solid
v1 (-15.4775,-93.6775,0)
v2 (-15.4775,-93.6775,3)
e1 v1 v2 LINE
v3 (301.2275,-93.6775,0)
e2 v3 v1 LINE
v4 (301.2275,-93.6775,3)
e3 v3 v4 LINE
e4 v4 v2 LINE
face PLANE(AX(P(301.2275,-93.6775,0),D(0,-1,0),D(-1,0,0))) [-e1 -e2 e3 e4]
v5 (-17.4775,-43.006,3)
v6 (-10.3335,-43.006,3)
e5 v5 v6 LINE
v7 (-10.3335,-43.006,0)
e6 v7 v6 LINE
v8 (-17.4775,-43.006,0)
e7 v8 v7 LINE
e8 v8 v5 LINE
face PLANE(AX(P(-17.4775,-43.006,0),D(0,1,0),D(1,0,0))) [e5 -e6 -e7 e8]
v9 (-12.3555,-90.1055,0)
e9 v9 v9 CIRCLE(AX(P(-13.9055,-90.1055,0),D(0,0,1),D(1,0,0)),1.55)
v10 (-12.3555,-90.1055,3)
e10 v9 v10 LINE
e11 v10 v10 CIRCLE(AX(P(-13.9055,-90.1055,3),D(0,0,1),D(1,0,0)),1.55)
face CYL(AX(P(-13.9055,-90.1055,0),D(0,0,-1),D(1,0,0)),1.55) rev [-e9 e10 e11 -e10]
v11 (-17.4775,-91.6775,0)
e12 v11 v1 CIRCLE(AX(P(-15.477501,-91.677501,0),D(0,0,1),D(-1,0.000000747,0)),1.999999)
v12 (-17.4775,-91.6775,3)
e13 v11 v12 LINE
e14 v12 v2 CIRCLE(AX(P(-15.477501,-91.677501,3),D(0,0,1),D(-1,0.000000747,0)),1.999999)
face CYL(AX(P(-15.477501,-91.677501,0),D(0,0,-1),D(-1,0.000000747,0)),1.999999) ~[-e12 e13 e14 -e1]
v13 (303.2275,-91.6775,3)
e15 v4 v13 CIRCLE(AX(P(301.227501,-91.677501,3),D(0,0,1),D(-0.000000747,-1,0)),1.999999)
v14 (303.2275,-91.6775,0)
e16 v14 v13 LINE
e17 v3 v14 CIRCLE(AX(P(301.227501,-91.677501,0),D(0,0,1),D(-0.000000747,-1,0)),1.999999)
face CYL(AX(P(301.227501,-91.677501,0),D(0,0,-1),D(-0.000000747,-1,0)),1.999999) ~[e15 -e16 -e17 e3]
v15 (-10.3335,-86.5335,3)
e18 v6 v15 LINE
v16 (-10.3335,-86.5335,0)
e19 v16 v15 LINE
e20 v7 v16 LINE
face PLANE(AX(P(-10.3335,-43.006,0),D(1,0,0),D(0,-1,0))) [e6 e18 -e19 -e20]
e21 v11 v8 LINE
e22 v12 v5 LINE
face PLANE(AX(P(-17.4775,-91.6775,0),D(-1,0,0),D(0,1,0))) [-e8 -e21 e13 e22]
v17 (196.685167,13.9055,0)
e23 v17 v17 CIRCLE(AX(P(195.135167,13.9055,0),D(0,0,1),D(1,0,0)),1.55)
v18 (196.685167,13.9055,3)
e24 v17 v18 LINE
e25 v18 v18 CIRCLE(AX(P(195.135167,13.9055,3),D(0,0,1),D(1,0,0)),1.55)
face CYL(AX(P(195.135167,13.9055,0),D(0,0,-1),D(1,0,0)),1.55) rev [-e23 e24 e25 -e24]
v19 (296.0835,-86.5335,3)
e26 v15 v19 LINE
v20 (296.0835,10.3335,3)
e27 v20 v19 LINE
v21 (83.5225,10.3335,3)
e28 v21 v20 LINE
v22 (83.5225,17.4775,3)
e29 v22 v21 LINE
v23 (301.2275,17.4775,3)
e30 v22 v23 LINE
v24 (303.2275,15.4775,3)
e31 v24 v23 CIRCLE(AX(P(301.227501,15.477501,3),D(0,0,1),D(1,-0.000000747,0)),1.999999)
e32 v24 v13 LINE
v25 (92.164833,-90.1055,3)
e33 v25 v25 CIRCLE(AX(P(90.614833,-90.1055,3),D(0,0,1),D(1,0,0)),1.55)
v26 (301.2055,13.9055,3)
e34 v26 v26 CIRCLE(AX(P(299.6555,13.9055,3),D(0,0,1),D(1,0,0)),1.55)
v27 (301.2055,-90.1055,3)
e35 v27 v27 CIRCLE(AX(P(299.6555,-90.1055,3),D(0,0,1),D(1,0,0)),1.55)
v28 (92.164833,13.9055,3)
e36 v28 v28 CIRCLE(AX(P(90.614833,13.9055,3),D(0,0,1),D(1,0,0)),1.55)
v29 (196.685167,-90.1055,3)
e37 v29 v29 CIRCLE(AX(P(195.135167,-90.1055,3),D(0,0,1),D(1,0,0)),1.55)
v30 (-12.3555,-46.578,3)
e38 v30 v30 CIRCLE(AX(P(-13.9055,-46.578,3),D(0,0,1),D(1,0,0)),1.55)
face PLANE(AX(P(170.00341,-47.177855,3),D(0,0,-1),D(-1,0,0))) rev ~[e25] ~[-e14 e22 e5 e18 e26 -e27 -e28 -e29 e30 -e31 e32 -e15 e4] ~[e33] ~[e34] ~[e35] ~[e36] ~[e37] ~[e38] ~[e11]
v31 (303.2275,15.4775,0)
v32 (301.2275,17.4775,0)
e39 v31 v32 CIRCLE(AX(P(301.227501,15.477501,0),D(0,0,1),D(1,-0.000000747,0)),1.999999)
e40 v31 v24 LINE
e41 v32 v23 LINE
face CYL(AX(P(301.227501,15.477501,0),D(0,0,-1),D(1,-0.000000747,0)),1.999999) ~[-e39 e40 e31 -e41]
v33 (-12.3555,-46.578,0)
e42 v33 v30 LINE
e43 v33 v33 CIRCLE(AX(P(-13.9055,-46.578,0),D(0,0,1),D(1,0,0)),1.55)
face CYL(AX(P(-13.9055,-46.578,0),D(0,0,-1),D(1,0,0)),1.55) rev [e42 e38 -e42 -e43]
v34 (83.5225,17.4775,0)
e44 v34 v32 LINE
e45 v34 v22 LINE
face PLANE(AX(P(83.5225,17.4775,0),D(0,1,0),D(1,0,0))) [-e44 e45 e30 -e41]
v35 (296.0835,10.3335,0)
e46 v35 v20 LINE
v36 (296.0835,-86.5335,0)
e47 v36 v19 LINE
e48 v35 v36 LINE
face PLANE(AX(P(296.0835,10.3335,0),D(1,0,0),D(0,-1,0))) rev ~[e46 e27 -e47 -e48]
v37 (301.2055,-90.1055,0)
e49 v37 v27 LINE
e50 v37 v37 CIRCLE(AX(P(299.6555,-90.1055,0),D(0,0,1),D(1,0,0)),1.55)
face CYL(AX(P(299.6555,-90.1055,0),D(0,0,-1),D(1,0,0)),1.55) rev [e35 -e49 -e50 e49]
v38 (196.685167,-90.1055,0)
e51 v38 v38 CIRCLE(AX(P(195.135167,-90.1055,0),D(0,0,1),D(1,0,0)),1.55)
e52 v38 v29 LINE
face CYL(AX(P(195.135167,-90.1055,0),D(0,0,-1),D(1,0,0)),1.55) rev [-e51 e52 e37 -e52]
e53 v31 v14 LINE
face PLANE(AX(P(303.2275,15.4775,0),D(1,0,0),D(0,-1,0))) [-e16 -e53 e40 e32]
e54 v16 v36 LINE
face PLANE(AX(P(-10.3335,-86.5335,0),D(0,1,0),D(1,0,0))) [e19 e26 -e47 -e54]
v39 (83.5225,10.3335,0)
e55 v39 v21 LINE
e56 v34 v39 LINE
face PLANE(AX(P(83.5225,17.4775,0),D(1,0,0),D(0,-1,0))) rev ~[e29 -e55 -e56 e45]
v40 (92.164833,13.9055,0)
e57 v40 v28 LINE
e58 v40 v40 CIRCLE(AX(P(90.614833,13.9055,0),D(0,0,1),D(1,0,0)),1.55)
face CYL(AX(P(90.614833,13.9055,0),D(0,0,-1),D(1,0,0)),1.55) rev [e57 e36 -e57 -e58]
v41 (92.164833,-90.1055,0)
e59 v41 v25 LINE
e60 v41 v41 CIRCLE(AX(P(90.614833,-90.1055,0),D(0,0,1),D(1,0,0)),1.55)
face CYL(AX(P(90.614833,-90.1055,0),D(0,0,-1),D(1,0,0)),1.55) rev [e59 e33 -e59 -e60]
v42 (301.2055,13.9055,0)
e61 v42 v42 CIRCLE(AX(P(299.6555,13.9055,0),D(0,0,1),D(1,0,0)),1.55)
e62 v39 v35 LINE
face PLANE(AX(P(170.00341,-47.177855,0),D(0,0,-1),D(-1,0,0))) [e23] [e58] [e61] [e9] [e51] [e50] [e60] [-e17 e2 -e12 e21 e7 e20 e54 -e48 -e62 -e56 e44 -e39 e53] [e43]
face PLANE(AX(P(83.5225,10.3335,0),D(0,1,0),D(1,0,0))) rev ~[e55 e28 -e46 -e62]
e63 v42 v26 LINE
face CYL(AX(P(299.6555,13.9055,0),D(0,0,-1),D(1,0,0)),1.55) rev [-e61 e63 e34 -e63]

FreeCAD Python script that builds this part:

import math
import FreeCAD as App
import Part
import Sketcher

V = App.Vector
Q = App.Units.Quantity

doc = App.newDocument("Part")
body = doc.addObject("PartDesign::Body", "Body")

sketch1 = body.newObject("Sketcher::SketchObject", "Sketch")
sketch1.AttachmentSupport = (doc.getObject("XY_Plane"), [""])
sketch1.MapMode = "FlatFace"
sketch1.addGeometry([
    Part.LineSegment(V(301.2, 17.5, 0), V(83.5, 17.5, 0)),
    Part.LineSegment(V(83.5, 17.5, 0), V(83.5, 10.3, 0)),
    Part.LineSegment(V(83.5, 10.3, 0), V(296.1, 10.3, 0)),
    Part.LineSegment(V(296.1, 10.3, 0), V(296.1, -86.5, 0)),
    Part.LineSegment(V(296.1, -86.5, 0), V(-10.3, -86.5, 0)),
    Part.LineSegment(V(-10.3, -86.5, 0), V(-10.3, -43, 0)),
    Part.LineSegment(V(-10.3, -43, 0), V(-17.5, -43, 0)),
    Part.LineSegment(V(-17.5, -43, 0), V(-17.5, -91.7, 0)),
    Part.ArcOfCircle(Part.Circle(V(-15.5, -91.7, 0), V(0, 0, 1), 2), math.radians(180), math.radians(270)),
    Part.LineSegment(V(-15.5, -93.7, 0), V(301.2, -93.7, 0)),
    Part.ArcOfCircle(Part.Circle(V(301.2, -91.7, 0), V(0, 0, 1), 2), math.radians(-90), math.radians(0)),
    Part.LineSegment(V(303.2, -91.7, 0), V(303.2, 15.5, 0)),
    Part.ArcOfCircle(Part.Circle(V(301.2, 15.5, 0), V(0, 0, 1), 2), math.radians(0), math.radians(90)),
    Part.Circle(V(299.7, -90.1, 0), V(0, 0, 1), 1.6),
    Part.Circle(V(195.1, -90.1, 0), V(0, 0, 1), 1.6),
    Part.Circle(V(90.6, -90.1, 0), V(0, 0, 1), 1.6),
    Part.Circle(V(-13.9, -90.1, 0), V(0, 0, 1), 1.6),
    Part.Circle(V(-13.9, -46.6, 0), V(0, 0, 1), 1.6),
    Part.Circle(V(299.7, 13.9, 0), V(0, 0, 1), 1.6),
    Part.Circle(V(195.1, 13.9, 0), V(0, 0, 1), 1.6),
    Part.Circle(V(90.6, 13.9, 0), V(0, 0, 1), 1.6),
], False)
sketch1.addConstraint([
    Sketcher.Constraint("Coincident", 0, 2, 1, 1),
    Sketcher.Constraint("Coincident", 1, 2, 2, 1),
    Sketcher.Constraint("Coincident", 2, 2, 3, 1),
    Sketcher.Constraint("Coincident", 3, 2, 4, 1),
    Sketcher.Constraint("Coincident", 4, 2, 5, 1),
    Sketcher.Constraint("Coincident", 5, 2, 6, 1),
    Sketcher.Constraint("Coincident", 6, 2, 7, 1),
    Sketcher.Constraint("Tangent", 7, 2, 8, 1),
    Sketcher.Constraint("Tangent", 8, 2, 9, 1),
    Sketcher.Constraint("Tangent", 9, 2, 10, 1),
    Sketcher.Constraint("Tangent", 10, 2, 11, 1),
    Sketcher.Constraint("Tangent", 11, 2, 12, 1),
    Sketcher.Constraint("Tangent", 12, 2, 0, 1),
    Sketcher.Constraint("Horizontal", 0),
    Sketcher.Constraint("Vertical", 1),
    Sketcher.Constraint("Horizontal", 2),
    Sketcher.Constraint("Vertical", 3),
    Sketcher.Constraint("Horizontal", 4),
    Sketcher.Constraint("Vertical", 5),
    Sketcher.Constraint("Horizontal", 6),
    Sketcher.Constraint("Vertical", 7),
    Sketcher.Constraint("Horizontal", 9),
    Sketcher.Constraint("Vertical", 11),
    Sketcher.Constraint("Equal", 8, 10),
    Sketcher.Constraint("Equal", 10, 12),
    Sketcher.Constraint("Equal", 13, 14),
    Sketcher.Constraint("Equal", 14, 15),
    Sketcher.Constraint("Equal", 15, 16),
    Sketcher.Constraint("Equal", 16, 17),
    Sketcher.Constraint("Equal", 17, 18),
    Sketcher.Constraint("Equal", 18, 19),
    Sketcher.Constraint("Equal", 19, 20),
    Sketcher.Constraint("Horizontal", 13, 3, 14, 3),
    Sketcher.Constraint("Horizontal", 14, 3, 15, 3),
    Sketcher.Constraint("Horizontal", 15, 3, 16, 3),
    Sketcher.Constraint("Horizontal", 18, 3, 19, 3),
    Sketcher.Constraint("Horizontal", 19, 3, 20, 3),
    Sketcher.Constraint("Vertical", 16, 3, 17, 3),
    Sketcher.Constraint("Vertical", 13, 3, 18, 3),
    Sketcher.Constraint("Vertical", 14, 3, 19, 3),
    Sketcher.Constraint("Vertical", 15, 3, 20, 3),
    Sketcher.Constraint("Equal", 6, 1),
    Sketcher.Constraint("Radius", 8, Q("1.999999 mm")),
    Sketcher.Constraint("Diameter", 13, Q("3.1 mm")),
    Sketcher.Constraint("DistanceX", 0, 2, 0, 1, Q("217.705 mm")),
    Sketcher.Constraint("DistanceX", 2, 1, 2, 2, Q("212.561 mm")),
    Sketcher.Constraint("DistanceX", 4, 2, 4, 1, Q("306.417 mm")),
    Sketcher.Constraint("DistanceX", 6, 2, 6, 1, Q("7.144 mm")),
    Sketcher.Constraint("DistanceY", 3, 2, 3, 1, Q("96.867 mm")),
    Sketcher.Constraint("DistanceY", 11, 1, 11, 2, Q("107.155 mm")),
    Sketcher.Constraint("DistanceY", 5, 1, 5, 2, Q("43.5275 mm")),
    Sketcher.Constraint("DistanceY", 17, 3, -1, 1, Q("46.578 mm")),
    Sketcher.Constraint("DistanceY", 5, 2, -1, 1, Q("43.006 mm")),
    Sketcher.Constraint("DistanceX", 13, 3, 10, 3, Q("1.572001 mm")),
    Sketcher.Constraint("DistanceY", 10, 3, 13, 3, Q("1.572001 mm")),
    Sketcher.Constraint("DistanceX", 8, 3, 16, 3, Q("1.572001 mm")),
    Sketcher.Constraint("DistanceY", 18, 3, 12, 3, Q("1.572001 mm")),
    Sketcher.Constraint("DistanceX", 8, 3, -1, 1, Q("15.477501 mm")),
    Sketcher.Constraint("DistanceX", 8, 3, 14, 3, Q("210.612668 mm")),
    Sketcher.Constraint("DistanceX", 15, 3, 10, 3, Q("210.612668 mm")),
])
pad1 = body.newObject("PartDesign::Pad", "Pad")
pad1.Profile = sketch1
pad1.Length = 3

doc.recompute()
